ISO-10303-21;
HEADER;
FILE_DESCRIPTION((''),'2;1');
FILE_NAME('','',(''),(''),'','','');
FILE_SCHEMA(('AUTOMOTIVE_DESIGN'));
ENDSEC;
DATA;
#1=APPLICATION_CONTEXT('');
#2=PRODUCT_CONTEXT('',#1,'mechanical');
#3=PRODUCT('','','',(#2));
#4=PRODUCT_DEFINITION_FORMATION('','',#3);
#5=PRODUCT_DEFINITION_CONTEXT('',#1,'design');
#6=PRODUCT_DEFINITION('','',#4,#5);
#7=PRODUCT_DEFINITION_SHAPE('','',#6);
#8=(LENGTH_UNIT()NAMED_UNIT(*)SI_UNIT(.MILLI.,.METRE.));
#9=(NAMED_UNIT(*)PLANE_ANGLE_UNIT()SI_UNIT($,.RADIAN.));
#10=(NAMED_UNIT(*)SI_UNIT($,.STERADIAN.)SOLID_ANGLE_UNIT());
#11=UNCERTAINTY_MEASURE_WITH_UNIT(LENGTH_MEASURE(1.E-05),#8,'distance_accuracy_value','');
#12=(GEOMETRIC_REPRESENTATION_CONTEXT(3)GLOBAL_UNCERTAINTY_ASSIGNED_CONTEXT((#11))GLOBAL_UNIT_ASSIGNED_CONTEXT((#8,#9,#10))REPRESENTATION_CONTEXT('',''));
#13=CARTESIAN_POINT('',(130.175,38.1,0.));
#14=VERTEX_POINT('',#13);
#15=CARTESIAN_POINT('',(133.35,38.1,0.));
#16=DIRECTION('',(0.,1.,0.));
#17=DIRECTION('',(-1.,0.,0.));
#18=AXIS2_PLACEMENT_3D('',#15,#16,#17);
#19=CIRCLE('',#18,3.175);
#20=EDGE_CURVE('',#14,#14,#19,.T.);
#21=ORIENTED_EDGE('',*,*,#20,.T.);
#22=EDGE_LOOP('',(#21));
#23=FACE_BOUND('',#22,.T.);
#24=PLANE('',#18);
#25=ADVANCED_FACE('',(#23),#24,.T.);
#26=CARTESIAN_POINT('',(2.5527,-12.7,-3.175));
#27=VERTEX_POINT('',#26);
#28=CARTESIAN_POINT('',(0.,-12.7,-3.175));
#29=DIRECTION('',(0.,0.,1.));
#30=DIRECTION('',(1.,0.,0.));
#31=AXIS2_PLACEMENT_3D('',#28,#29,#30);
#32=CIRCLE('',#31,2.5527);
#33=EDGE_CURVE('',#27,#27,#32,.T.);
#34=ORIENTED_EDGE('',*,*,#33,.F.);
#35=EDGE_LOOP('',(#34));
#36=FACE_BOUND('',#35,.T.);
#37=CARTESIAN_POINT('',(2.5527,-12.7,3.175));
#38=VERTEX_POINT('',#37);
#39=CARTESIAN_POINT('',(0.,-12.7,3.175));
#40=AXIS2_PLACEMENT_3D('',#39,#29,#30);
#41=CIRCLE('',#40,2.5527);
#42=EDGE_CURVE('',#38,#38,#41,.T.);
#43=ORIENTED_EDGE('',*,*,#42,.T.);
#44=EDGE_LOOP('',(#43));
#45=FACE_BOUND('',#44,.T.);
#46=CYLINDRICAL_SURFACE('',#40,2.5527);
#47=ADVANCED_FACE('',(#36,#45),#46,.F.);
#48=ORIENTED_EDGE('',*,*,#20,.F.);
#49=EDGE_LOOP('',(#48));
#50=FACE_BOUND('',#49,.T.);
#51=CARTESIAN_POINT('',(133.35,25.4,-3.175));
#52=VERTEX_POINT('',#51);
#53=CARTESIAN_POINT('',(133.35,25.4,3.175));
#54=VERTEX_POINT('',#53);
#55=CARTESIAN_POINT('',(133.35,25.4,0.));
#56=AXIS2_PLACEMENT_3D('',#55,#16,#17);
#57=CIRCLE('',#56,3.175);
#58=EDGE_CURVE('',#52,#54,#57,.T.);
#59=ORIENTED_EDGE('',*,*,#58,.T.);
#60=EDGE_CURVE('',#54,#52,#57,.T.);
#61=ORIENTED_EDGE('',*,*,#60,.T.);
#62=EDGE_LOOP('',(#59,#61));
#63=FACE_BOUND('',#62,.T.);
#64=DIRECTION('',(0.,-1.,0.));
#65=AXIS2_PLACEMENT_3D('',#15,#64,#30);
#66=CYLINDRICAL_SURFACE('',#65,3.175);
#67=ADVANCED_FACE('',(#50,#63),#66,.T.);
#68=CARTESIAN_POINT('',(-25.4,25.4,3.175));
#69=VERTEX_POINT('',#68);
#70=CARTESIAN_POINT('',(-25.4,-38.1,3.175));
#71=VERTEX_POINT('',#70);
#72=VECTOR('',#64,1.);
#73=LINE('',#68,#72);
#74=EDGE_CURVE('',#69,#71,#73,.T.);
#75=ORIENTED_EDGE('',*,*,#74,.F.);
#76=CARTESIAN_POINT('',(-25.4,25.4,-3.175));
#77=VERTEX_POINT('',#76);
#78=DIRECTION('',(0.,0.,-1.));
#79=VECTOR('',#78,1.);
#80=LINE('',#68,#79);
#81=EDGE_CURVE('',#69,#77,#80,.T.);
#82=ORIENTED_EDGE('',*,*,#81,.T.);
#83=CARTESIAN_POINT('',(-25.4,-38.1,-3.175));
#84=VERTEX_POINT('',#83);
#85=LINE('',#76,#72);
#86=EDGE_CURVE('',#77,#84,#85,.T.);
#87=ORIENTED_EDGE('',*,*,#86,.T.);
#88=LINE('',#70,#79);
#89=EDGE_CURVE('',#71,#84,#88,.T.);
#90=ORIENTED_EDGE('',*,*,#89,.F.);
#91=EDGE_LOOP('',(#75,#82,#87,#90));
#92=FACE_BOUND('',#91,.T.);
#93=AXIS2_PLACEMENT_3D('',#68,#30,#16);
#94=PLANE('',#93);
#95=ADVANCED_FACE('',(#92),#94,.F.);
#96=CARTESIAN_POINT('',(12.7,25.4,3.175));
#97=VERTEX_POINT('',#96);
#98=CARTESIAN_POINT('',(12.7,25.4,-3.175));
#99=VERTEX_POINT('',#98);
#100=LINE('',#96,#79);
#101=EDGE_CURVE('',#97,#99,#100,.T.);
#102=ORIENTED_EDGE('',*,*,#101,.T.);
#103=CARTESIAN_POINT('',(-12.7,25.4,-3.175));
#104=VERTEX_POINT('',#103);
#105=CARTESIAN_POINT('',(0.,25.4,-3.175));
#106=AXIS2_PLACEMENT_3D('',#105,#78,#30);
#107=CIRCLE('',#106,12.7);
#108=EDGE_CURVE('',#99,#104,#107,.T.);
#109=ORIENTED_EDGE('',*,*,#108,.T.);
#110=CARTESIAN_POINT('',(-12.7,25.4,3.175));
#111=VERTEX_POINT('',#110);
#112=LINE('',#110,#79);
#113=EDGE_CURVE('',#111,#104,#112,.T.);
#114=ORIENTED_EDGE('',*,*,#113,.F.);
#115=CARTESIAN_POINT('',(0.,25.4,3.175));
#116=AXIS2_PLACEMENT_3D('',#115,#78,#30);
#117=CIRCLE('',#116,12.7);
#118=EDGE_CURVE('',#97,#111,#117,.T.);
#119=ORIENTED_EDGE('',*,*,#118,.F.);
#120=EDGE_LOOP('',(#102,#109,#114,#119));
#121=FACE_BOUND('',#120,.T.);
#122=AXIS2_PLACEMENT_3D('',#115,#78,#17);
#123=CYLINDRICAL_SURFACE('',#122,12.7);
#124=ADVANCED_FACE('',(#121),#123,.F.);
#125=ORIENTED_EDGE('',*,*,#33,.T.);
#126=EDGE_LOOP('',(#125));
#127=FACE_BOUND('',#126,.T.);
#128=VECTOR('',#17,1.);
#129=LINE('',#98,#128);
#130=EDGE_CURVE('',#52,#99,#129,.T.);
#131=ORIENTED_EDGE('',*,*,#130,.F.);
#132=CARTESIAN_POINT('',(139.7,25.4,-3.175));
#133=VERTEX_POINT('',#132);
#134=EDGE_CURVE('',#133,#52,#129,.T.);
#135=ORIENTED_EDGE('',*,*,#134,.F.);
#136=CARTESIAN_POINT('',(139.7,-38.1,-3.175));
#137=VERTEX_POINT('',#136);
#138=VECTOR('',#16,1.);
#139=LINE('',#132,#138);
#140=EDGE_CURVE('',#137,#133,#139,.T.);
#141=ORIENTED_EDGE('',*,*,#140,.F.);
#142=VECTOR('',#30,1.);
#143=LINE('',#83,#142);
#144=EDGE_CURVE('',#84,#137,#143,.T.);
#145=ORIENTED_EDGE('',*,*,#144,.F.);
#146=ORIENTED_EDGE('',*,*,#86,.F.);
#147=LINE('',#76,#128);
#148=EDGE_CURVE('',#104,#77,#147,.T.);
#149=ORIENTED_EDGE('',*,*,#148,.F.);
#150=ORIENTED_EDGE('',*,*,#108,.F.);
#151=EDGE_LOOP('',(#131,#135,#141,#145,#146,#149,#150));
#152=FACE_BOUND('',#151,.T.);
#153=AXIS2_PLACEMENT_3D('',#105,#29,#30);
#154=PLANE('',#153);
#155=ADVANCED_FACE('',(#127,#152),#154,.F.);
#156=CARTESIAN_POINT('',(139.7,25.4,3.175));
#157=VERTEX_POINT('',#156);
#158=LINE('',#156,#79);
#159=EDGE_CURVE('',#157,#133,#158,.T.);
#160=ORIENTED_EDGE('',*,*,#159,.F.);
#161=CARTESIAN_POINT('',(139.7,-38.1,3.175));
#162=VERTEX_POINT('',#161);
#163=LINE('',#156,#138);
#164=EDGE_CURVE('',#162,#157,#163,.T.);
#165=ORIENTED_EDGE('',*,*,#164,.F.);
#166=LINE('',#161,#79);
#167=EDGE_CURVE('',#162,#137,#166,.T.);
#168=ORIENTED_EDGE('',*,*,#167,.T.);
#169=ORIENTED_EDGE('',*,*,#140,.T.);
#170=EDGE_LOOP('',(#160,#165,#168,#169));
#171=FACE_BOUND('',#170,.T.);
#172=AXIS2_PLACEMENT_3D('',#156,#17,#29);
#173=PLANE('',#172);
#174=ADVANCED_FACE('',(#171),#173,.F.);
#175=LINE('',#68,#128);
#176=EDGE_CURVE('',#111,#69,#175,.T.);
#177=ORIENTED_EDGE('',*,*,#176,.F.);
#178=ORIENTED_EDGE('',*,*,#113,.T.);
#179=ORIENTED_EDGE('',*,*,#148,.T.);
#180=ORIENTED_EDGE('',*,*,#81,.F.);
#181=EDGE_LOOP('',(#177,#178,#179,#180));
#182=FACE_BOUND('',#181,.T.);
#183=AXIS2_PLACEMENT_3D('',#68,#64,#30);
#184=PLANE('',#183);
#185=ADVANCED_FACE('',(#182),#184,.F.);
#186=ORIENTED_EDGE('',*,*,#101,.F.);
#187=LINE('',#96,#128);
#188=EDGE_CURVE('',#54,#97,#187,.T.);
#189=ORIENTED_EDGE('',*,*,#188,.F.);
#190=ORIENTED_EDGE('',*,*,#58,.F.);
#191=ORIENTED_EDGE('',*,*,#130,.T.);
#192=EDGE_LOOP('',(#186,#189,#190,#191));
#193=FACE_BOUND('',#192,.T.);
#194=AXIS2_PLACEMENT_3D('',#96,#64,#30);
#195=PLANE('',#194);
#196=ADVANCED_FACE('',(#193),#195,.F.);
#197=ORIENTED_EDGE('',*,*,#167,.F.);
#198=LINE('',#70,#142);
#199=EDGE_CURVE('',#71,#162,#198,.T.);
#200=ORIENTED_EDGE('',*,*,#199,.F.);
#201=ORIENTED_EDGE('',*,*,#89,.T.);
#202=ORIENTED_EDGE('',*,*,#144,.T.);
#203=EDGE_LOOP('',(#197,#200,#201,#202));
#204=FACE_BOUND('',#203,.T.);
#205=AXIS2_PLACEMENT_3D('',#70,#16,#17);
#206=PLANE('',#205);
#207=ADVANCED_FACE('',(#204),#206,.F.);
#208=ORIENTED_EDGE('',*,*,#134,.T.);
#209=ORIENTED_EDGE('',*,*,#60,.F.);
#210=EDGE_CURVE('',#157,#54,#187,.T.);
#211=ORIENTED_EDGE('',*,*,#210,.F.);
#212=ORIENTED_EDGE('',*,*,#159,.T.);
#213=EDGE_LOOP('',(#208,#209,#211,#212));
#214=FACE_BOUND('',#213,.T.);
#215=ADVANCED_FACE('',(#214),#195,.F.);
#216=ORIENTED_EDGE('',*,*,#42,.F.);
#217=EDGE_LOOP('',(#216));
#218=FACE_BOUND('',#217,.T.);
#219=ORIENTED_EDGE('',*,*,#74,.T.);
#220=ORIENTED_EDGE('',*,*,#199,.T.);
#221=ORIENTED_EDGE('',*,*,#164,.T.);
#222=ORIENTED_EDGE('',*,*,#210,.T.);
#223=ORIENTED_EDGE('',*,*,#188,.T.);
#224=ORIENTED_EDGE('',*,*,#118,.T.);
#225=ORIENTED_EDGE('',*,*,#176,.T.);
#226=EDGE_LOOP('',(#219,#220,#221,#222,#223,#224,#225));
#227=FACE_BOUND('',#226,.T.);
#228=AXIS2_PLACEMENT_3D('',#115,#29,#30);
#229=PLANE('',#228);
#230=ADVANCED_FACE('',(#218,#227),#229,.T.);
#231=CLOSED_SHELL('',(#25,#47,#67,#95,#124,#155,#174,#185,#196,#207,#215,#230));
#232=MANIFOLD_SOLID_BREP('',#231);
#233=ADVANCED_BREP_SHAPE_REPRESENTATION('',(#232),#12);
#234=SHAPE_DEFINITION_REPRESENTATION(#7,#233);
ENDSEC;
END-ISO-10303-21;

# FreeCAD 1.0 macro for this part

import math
import FreeCAD as App
import Part
import Sketcher
from FreeCAD import Vector
Q = App.Units.Quantity

doc = App.newDocument("Part")
body = doc.addObject("PartDesign::Body", "Body")

# Sketch on XY plane
sketch1 = body.newObject("Sketcher::SketchObject", "Sketch")
sketch1.AttachmentSupport = (doc.getObject("XY_Plane"), [""])
sketch1.MapMode = "FlatFace"
sketch1.addGeometry([
    Part.LineSegment(Vector(-12.7, 25.4, 0), Vector(-25.4, 25.4, 0)),  # 0
    Part.LineSegment(Vector(-25.4, 25.4, 0), Vector(-25.4, -38.1, 0)),  # 1
    Part.LineSegment(Vector(-25.4, -38.1, 0), Vector(139.7, -38.1, 0)),  # 2
    Part.LineSegment(Vector(139.7, -38.1, 0), Vector(139.7, 25.4, 0)),  # 3
    Part.LineSegment(Vector(139.7, 25.4, 0), Vector(12.7, 25.4, 0)),  # 4
    Part.ArcOfCircle(Part.Circle(Vector(0, 25.4, 0), Vector(0, 0, 1), 12.7), math.radians(180), math.radians(360)),  # 5
], False)
sketch1.addConstraint([
    Sketcher.Constraint("Coincident", 0, 2, 1, 1),
    Sketcher.Constraint("Coincident", 1, 2, 2, 1),
    Sketcher.Constraint("Coincident", 2, 2, 3, 1),
    Sketcher.Constraint("Coincident", 3, 2, 4, 1),
    Sketcher.Constraint("Coincident", 4, 2, 5, 2),
    Sketcher.Constraint("Coincident", 5, 1, 0, 1),
    Sketcher.Constraint("Horizontal", 0),
    Sketcher.Constraint("Vertical", 1),
    Sketcher.Constraint("Horizontal", 2),
    Sketcher.Constraint("Vertical", 3),
    Sketcher.Constraint("Horizontal", 4),
    Sketcher.Constraint("Symmetric", 4, 2, 5, 1, -2),
    Sketcher.Constraint("Horizontal", 5, 3, 0, 2),
    Sketcher.Constraint("Radius", 5, Q("0.5 in")),
    Sketcher.Constraint("DistanceX", 4, 2, 4, 1, Q("5 in")),
    Sketcher.Constraint("DistanceX", 0, 2, 0, 1, Q("0.5 in")),
    Sketcher.Constraint("DistanceY", 1, 2, 1, 1, Q("2.5 in")),
    Sketcher.Constraint("DistanceY", -1, 1, 5, 3, Q("1 in")),
])
pad1 = body.newObject("PartDesign::Pad", "Pad")
pad1.Profile = sketch1
pad1.Length = Q("0.25 in")
pad1.Midplane = True

# Sketch on XY plane
sketch2 = body.newObject("Sketcher::SketchObject", "Sketch001")
sketch2.AttachmentSupport = (doc.getObject("XY_Plane"), [""])
sketch2.MapMode = "FlatFace"
sketch2.AttachmentOffset = App.Placement(Vector(0, 0, 0.125 * 25.4), App.Rotation())
sketch2.addGeometry(Part.Circle(Vector(0, -12.7, 0), Vector(0, 0, 1), 2.5527), False)
sketch2.addConstraint([
    Sketcher.Constraint("PointOnObject", 0, 3, -2),
    Sketcher.Constraint("Diameter", 0, Q("0.201 in")),
    Sketcher.Constraint("DistanceY", 0, 3, -1, 1, Q("0.5 in")),
])
doc.recompute()
hole = body.newObject("PartDesign::Hole", "Hole")
hole.Profile = sketch2
hole.ThreadType = "None"
hole.Diameter = Q("0.201 in")
hole.DepthType = "ThroughAll"

# Sketch on XZ plane
sketch3 = body.newObject("Sketcher::SketchObject", "Sketch002")
sketch3.AttachmentSupport = (doc.getObject("XZ_Plane"), [""])
sketch3.MapMode = "FlatFace"
sketch3.AttachmentOffset = App.Placement(Vector(0, 0, -1 * 25.4), App.Rotation())
sketch3.addGeometry(Part.Circle(Vector(133.35, 0, 0), Vector(0, 0, 1), 3.175), False)
sketch3.addConstraint([
    Sketcher.Constraint("PointOnObject", 0, 3, -1),
    Sketcher.Constraint("Diameter", 0, Q("0.25 in")),
    Sketcher.Constraint("DistanceX", -1, 1, 0, 3, Q("5.25 in")),
])
pad2 = body.newObject("PartDesign::Pad", "Pad001")
pad2.Profile = sketch3
pad2.Length = Q("0.5 in")
pad2.Reversed = True

doc.recompute()
